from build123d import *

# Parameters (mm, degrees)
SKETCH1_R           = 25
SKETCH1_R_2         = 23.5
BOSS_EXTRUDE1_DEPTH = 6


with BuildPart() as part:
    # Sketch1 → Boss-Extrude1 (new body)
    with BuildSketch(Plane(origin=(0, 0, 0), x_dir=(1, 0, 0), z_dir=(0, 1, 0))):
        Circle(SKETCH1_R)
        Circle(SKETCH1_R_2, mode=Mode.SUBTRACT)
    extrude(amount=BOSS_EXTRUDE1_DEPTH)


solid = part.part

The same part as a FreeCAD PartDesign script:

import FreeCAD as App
import Part
import Sketcher

V = App.Vector
Q = App.Units.Quantity

doc = App.newDocument("Part")
body = doc.addObject("PartDesign::Body", "Body")

# Sketch on XZ plane
sketch1 = body.newObject("Sketcher::SketchObject", "Sketch")
sketch1.AttachmentSupport = (doc.getObject("XZ_Plane"), [""])
sketch1.MapMode = "FlatFace"
sketch1.addGeometry(Part.Circle(V(0, 0, 0), V(0, 0, 1), 25), False)
sketch1.addGeometry(Part.Circle(V(0, 0, 0), V(0, 0, 1), 23.5), False)
sketch1.addConstraint(Sketcher.Constraint("Coincident", 0, 3, -1, 1))
sketch1.addConstraint(Sketcher.Constraint("Coincident", 1, 3, -1, 1))
sketch1.addConstraint(Sketcher.Constraint("Diameter", 0, Q("50 mm")))
sketch1.addConstraint(Sketcher.Constraint("Diameter", 1, Q("47 mm")))
pad1 = body.newObject("PartDesign::Pad", "Pad")
pad1.Profile = sketch1
pad1.Length = 6
pad1.Reversed = True

doc.recompute()
